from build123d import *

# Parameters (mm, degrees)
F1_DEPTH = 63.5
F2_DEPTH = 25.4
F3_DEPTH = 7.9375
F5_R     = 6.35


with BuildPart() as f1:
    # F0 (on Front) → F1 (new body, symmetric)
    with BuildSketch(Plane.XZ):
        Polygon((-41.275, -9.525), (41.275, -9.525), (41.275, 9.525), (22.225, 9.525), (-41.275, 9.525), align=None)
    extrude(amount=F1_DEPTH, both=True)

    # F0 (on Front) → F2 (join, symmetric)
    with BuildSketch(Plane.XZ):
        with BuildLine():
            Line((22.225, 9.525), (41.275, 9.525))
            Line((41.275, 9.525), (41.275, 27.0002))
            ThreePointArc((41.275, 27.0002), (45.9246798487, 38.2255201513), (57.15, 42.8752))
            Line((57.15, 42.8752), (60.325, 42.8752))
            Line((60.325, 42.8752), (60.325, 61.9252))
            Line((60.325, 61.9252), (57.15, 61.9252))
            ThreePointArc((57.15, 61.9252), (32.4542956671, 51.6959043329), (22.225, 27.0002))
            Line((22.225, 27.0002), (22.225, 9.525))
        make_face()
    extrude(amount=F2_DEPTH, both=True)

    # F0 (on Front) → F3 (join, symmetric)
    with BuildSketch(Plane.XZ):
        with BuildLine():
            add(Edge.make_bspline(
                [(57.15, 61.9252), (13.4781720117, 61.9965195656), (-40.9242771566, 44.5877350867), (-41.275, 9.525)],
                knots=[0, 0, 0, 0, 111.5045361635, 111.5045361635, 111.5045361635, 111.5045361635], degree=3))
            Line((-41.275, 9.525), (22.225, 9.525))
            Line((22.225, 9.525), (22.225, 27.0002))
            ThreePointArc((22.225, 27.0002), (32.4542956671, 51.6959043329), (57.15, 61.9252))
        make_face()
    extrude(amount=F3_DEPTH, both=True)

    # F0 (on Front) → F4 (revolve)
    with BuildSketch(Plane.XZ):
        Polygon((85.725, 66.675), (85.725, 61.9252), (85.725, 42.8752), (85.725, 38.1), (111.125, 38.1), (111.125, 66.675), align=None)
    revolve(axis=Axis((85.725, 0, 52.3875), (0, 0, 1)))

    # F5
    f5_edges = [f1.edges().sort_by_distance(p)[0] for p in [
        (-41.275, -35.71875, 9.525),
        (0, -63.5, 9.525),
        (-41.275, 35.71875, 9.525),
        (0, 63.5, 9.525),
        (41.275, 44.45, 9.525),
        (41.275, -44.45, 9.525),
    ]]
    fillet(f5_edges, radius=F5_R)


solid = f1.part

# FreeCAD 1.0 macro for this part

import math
import FreeCAD as App
import Part
import Sketcher
from FreeCAD import Vector
Q = App.Units.Quantity


def edges_at(feature, points):
    """Names of the edges that pass closest to the given points."""
    edges = feature.Shape.Edges
    near = lambda p: min(range(len(edges)), key=lambda i: edges[i].distToShape(Part.Vertex(*p))[0])
    return sorted({f"Edge{near(p) + 1}" for p in points})

doc = App.newDocument("Part")
body = doc.addObject("PartDesign::Body", "Body")
body.AllowCompound = True

sketch1 = doc.addObject("Sketcher::SketchObject", "Sketch")
body.addObject(sketch1)
sketch1.AttachmentSupport = (doc.XZ_Plane, [""])
sketch1.MapMode = "FlatFace"
sketch1.addGeometry(Part.LineSegment(Vector(-41, -10, 0), Vector(41, -10, 0)), False)
sketch1.addGeometry(Part.LineSegment(Vector(41, -10, 0), Vector(41, 10, 0)), False)
sketch1.addGeometry(Part.LineSegment(Vector(41, 10, 0), Vector(-41, 10, 0)), False)
sketch1.addGeometry(Part.LineSegment(Vector(-41, 10, 0), Vector(-41, -10, 0)), False)
sketch1.addConstraint(Sketcher.Constraint("Coincident", 0, 2, 1, 1))
sketch1.addConstraint(Sketcher.Constraint("Coincident", 1, 2, 2, 1))
sketch1.addConstraint(Sketcher.Constraint("Coincident", 2, 2, 3, 1))
sketch1.addConstraint(Sketcher.Constraint("Coincident", 3, 2, 0, 1))
sketch1.addConstraint(Sketcher.Constraint("Horizontal", 0))
sketch1.addConstraint(Sketcher.Constraint("Vertical", 1))
sketch1.addConstraint(Sketcher.Constraint("Horizontal", 2))
sketch1.addConstraint(Sketcher.Constraint("Vertical", 3))
sketch1.addConstraint(Sketcher.Constraint("Symmetric", 0, 2, 2, 2, -1, 1))
sketch1.addConstraint(Sketcher.Constraint("DistanceX", 0, 1, 0, 2, Q("3.25 in")))
sketch1.addConstraint(Sketcher.Constraint("DistanceY", 1, 1, 1, 2, Q("0.75 in")))
pad1 = doc.addObject("PartDesign::Pad", "Pad")
body.addObject(pad1)
pad1.Profile = sketch1
pad1.Length = Q("5 in")
pad1.Midplane = True

sketch2 = doc.addObject("Sketcher::SketchObject", "Sketch001")
body.addObject(sketch2)
sketch2.AttachmentSupport = (doc.XZ_Plane, [""])
sketch2.MapMode = "FlatFace"
sketch2.addGeometry(Part.LineSegment(Vector(22.2, 9.5, 0), Vector(41.3, 9.5, 0)), False)
sketch2.addGeometry(Part.LineSegment(Vector(41.3, 9.5, 0), Vector(41.3, 27, 0)), False)
sketch2.addGeometry(Part.ArcOfCircle(Part.Circle(Vector(57.1, 27, 0), Vector(0, 0, 1), 15.9), math.radians(90), math.radians(180)), False)
sketch2.addGeometry(Part.LineSegment(Vector(57.1, 42.9, 0), Vector(60.3, 42.9, 0)), False)
sketch2.addGeometry(Part.LineSegment(Vector(60.3, 42.9, 0), Vector(60.3, 61.9, 0)), False)
sketch2.addGeometry(Part.LineSegment(Vector(60.3, 61.9, 0), Vector(57.1, 61.9, 0)), False)
sketch2.addGeometry(Part.ArcOfCircle(Part.Circle(Vector(57.1, 27, 0), Vector(0, 0, 1), 34.9), math.radians(90), math.radians(180)), False)
sketch2.addGeometry(Part.LineSegment(Vector(22.2, 27, 0), Vector(22.2, 9.5, 0)), False)
sketch2.addConstraint(Sketcher.Constraint("Coincident", 0, 2, 1, 1))
sketch2.addConstraint(Sketcher.Constraint("Tangent", 1, 2, 2, 2))
sketch2.addConstraint(Sketcher.Constraint("Tangent", 2, 1, 3, 1))
sketch2.addConstraint(Sketcher.Constraint("Coincident", 3, 2, 4, 1))
sketch2.addConstraint(Sketcher.Constraint("Coincident", 4, 2, 5, 1))
sketch2.addConstraint(Sketcher.Constraint("Tangent", 5, 2, 6, 1))
sketch2.addConstraint(Sketcher.Constraint("Tangent", 6, 2, 7, 1))
sketch2.addConstraint(Sketcher.Constraint("Coincident", 7, 2, 0, 1))
sketch2.addConstraint(Sketcher.Constraint("Horizontal", 0))
sketch2.addConstraint(Sketcher.Constraint("Vertical", 1))
sketch2.addConstraint(Sketcher.Constraint("Horizontal", 3))
sketch2.addConstraint(Sketcher.Constraint("Vertical", 4))
sketch2.addConstraint(Sketcher.Constraint("Horizontal", 5))
sketch2.addConstraint(Sketcher.Constraint("Vertical", 7))
sketch2.addConstraint(Sketcher.Constraint("Coincident", 6, 3, 2, 3))
sketch2.addConstraint(Sketcher.Constraint("Radius", 2, Q("0.625 in")))
sketch2.addConstraint(Sketcher.Constraint("Radius", 6, Q("1.375 in")))
sketch2.addConstraint(Sketcher.Constraint("DistanceX", 3, 1, 3, 2, Q("0.125 in")))
sketch2.addConstraint(Sketcher.Constraint("DistanceY", 1, 1, 1, 2, Q("0.688 in")))
sketch2.addConstraint(Sketcher.Constraint("DistanceX", -1, 1, 2, 3, Q("2.25 in")))
sketch2.addConstraint(Sketcher.Constraint("DistanceY", -1, 1, 2, 3, Q("1.063 in")))
pad2 = doc.addObject("PartDesign::Pad", "Pad001")
body.addObject(pad2)
pad2.Profile = sketch2
pad2.Length = Q("2 in")
pad2.Midplane = True

sketch3 = doc.addObject("Sketcher::SketchObject", "Sketch002")
body.addObject(sketch3)
sketch3.AttachmentSupport = (doc.XZ_Plane, [""])
sketch3.MapMode = "FlatFace"
sketch3.addGeometry(Part.BSplineCurve([Vector(57.15, 61.9252, 0), Vector(13.478172, 61.99652, 0), Vector(-40.924277, 44.587735, 0), Vector(-41.275, 9.525, 0)], [4, 4], [0, 111.504536164], False, 3, [1, 1, 1, 1], False), False)
sketch3.addGeometry(Part.LineSegment(Vector(-41.275, 9.525, 0), Vector(22.225, 9.525, 0)), False)
sketch3.addGeometry(Part.LineSegment(Vector(22.225, 9.525, 0), Vector(22.225, 27.0002, 0)), False)
sketch3.addGeometry(Part.ArcOfCircle(Part.Circle(Vector(57.15, 27.0002, 0), Vector(0, 0, 1), 34.925), math.radians(90), math.radians(180)), False)
sketch3.addConstraint(Sketcher.Constraint("Block", 0))
sketch3.addConstraint(Sketcher.Constraint("Coincident", 0, 2, 1, 1))
sketch3.addConstraint(Sketcher.Constraint("Coincident", 1, 2, 2, 1))
sketch3.addConstraint(Sketcher.Constraint("Tangent", 2, 2, 3, 2))
sketch3.addConstraint(Sketcher.Constraint("Coincident", 3, 1, 0, 1))
sketch3.addConstraint(Sketcher.Constraint("Horizontal", 1))
sketch3.addConstraint(Sketcher.Constraint("Vertical", 2))
sketch3.addConstraint(Sketcher.Constraint("DistanceX", 1, 1, 1, 2, Q("2.5 in")))
sketch3.addConstraint(Sketcher.Constraint("Radius", 3, Q("1.375 in")))
pad3 = doc.addObject("PartDesign::Pad", "Pad002")
body.addObject(pad3)
pad3.Profile = sketch3
pad3.Length = Q("0.625 in")
pad3.Midplane = True

sketch4 = doc.addObject("Sketcher::SketchObject", "Sketch003")
body.addObject(sketch4)
sketch4.AttachmentSupport = (doc.XZ_Plane, [""])
sketch4.MapMode = "FlatFace"
sketch4.addGeometry(Part.LineSegment(Vector(86, 67, 0), Vector(86, 38, 0)), False)
sketch4.addGeometry(Part.LineSegment(Vector(86, 38, 0), Vector(111, 38, 0)), False)
sketch4.addGeometry(Part.LineSegment(Vector(111, 38, 0), Vector(111, 67, 0)), False)
sketch4.addGeometry(Part.LineSegment(Vector(111, 67, 0), Vector(86, 67, 0)), False)
sketch4.addGeometry(Part.LineSegment(Vector(86, 38, 0), Vector(86, 67, 0)), True)
sketch4.addConstraint(Sketcher.Constraint("Coincident", 0, 2, 1, 1))
sketch4.addConstraint(Sketcher.Constraint("Coincident", 1, 2, 2, 1))
sketch4.addConstraint(Sketcher.Constraint("Coincident", 2, 2, 3, 1))
sketch4.addConstraint(Sketcher.Constraint("Coincident", 3, 2, 0, 1))
sketch4.addConstraint(Sketcher.Constraint("Vertical", 0))
sketch4.addConstraint(Sketcher.Constraint("Horizontal", 1))
sketch4.addConstraint(Sketcher.Constraint("Vertical", 2))
sketch4.addConstraint(Sketcher.Constraint("Horizontal", 3))
sketch4.addConstraint(Sketcher.Constraint("Vertical", 4))
sketch4.addConstraint(Sketcher.Constraint("Coincident", 4, 1, 0, 2))
sketch4.addConstraint(Sketcher.Constraint("Horizontal", 2, 2, 4, 2))
sketch4.addConstraint(Sketcher.Constraint("DistanceX", 1, 1, 1, 2, Q("1 in")))
sketch4.addConstraint(Sketcher.Constraint("DistanceY", -1, 1, 0, 2, Q("1.5 in")))
sketch4.addConstraint(Sketcher.Constraint("DistanceY", 0, 2, 0, 1, Q("1.125 in")))
sketch4.addConstraint(Sketcher.Constraint("DistanceX", -1, 1, 0, 2, Q("3.375 in")))
revolution = doc.addObject("PartDesign::Revolution", "Revolution")
body.addObject(revolution)
revolution.Profile = sketch4
revolution.ReferenceAxis = (sketch4, ["Axis0"])
revolution.Angle = 360
doc.recompute()

fillet = doc.addObject("PartDesign::Fillet", "Fillet")
body.addObject(fillet)
fillet.Base = (revolution, edges_at(revolution, [
    (-41.275, -35.719, 9.525),
    (0, -63.5, 9.525),
    (-41.275, 35.719, 9.525),
    (0, 63.5, 9.525),
    (41.275, 44.45, 9.525),
    (41.275, -44.45, 9.525),
]))
fillet.Radius = Q("0.25 in")

doc.recompute()
